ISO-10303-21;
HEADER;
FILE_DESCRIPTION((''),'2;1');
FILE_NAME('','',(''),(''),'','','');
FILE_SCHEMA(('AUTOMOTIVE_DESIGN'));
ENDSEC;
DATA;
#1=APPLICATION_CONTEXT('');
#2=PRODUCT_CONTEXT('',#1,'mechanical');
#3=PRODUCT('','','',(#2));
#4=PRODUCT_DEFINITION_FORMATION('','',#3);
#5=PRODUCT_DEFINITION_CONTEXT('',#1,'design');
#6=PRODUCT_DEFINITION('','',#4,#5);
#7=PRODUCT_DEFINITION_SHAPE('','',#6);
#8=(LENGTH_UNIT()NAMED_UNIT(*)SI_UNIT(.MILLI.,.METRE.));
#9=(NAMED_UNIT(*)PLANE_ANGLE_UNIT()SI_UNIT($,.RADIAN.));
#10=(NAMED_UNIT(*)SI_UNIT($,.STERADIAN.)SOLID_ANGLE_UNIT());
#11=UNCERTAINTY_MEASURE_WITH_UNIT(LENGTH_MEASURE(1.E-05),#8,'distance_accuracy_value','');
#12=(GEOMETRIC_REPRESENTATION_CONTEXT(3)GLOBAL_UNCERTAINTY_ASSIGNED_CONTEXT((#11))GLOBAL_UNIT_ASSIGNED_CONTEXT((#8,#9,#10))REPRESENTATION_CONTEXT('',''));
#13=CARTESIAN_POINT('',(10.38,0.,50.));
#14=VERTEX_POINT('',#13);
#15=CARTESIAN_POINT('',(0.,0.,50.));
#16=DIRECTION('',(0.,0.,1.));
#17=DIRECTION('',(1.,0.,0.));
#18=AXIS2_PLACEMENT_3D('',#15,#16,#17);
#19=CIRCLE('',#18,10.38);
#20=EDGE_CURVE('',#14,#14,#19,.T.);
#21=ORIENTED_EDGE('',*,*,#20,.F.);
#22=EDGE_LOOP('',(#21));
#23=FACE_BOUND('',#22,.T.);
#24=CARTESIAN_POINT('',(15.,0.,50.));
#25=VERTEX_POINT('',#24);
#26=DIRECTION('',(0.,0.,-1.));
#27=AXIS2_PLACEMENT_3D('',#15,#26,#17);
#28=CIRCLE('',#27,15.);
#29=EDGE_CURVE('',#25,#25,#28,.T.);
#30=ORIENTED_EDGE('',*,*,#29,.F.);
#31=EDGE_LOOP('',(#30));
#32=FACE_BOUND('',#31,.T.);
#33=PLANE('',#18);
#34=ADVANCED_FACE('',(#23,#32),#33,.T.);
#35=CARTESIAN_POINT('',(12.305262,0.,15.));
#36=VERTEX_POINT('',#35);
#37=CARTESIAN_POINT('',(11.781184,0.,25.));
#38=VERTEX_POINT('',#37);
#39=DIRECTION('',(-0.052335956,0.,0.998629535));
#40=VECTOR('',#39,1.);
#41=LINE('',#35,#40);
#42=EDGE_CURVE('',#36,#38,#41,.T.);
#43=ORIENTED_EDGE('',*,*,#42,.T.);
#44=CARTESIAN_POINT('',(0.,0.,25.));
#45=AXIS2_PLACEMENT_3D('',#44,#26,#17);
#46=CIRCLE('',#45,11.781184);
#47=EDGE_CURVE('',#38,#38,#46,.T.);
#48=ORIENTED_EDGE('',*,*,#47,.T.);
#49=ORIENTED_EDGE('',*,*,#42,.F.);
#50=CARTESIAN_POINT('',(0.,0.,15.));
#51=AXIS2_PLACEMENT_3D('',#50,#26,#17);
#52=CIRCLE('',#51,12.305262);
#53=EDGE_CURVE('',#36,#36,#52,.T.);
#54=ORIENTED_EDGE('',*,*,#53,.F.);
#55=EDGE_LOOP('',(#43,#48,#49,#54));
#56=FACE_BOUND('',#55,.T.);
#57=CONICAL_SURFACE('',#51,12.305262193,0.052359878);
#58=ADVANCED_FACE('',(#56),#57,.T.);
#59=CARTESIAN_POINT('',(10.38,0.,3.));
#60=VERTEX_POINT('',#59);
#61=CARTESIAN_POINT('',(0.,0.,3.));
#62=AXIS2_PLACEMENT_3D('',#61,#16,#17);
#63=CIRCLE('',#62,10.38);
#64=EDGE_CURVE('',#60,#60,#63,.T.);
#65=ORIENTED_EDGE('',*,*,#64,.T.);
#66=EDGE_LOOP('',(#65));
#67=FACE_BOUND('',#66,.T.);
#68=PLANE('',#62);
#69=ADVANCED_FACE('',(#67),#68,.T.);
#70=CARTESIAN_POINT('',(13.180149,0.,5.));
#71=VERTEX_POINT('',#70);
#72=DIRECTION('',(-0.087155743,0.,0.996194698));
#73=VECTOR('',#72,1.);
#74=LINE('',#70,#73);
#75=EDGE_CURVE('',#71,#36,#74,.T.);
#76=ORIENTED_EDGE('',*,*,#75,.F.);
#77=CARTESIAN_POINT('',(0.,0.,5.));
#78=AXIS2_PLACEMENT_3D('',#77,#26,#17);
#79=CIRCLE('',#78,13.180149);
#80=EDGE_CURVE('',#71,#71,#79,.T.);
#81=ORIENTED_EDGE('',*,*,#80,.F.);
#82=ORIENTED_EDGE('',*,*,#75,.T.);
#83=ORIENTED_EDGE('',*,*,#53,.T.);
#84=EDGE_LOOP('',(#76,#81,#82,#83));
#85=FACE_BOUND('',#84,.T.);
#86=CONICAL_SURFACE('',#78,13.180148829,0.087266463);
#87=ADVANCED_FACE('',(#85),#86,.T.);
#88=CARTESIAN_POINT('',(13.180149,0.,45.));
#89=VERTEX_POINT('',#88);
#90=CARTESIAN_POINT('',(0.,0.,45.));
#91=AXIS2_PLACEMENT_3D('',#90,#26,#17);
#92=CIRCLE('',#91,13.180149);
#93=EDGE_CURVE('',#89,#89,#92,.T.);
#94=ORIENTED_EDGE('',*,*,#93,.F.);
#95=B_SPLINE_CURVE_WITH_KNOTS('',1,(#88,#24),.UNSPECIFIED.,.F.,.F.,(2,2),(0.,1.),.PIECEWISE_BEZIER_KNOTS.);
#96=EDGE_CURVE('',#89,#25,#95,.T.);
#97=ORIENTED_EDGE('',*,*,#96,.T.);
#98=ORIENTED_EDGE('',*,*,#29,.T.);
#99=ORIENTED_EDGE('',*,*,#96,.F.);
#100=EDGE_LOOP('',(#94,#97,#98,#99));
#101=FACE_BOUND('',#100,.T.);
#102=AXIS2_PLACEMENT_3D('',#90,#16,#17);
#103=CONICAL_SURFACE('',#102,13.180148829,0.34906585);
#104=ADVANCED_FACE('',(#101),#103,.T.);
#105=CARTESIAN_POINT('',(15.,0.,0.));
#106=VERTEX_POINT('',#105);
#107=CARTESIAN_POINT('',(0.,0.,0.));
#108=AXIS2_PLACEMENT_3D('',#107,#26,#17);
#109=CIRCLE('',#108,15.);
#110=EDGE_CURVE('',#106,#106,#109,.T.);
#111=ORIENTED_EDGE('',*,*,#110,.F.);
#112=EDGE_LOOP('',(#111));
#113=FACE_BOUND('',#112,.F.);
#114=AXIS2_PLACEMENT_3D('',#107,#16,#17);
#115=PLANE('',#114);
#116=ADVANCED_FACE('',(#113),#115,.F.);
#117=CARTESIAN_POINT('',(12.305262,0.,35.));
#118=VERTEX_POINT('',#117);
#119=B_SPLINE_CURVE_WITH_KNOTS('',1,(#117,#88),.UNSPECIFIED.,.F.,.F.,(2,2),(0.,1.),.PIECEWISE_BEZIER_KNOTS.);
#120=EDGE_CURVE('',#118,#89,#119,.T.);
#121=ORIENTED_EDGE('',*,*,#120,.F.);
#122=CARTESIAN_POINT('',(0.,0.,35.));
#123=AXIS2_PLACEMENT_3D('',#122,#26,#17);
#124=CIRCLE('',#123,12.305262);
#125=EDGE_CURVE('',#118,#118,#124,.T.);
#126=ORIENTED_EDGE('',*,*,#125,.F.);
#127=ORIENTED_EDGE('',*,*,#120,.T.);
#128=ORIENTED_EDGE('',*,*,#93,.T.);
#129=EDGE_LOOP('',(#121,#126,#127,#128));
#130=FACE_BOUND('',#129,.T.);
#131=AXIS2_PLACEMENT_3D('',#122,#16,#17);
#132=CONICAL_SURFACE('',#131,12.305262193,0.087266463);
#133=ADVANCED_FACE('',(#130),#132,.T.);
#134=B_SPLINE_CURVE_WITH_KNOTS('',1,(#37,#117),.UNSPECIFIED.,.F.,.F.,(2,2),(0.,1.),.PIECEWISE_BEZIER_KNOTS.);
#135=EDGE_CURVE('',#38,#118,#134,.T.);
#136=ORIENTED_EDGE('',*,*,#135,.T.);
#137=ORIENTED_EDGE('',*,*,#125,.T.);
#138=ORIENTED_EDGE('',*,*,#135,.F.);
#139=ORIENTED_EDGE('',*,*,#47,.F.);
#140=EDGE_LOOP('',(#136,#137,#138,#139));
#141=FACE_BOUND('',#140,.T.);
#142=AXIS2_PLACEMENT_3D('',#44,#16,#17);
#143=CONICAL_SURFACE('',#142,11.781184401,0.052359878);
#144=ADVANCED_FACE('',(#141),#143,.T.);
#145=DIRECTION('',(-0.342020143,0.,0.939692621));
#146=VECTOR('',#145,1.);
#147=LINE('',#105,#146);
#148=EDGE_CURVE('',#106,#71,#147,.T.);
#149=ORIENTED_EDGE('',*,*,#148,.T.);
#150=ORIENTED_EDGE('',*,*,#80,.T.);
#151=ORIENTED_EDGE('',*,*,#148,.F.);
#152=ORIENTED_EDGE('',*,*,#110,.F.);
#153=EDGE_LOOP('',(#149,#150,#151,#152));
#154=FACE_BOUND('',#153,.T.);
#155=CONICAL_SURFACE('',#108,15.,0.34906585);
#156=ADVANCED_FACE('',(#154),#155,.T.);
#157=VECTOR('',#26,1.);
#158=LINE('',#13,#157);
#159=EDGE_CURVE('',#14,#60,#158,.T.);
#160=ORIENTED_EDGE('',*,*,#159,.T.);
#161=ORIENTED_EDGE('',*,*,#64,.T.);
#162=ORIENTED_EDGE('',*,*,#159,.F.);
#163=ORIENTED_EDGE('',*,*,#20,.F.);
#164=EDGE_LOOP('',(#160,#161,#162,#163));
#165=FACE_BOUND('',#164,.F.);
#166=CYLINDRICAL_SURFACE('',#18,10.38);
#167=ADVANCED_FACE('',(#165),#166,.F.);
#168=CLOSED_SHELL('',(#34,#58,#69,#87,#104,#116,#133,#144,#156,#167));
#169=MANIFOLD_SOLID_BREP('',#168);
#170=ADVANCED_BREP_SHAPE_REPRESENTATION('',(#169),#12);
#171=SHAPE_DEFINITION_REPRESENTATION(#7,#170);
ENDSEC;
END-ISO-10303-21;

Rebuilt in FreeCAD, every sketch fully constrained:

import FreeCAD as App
import Part
import Sketcher

V = App.Vector

doc = App.newDocument("Part")
body = doc.addObject("PartDesign::Body", "Body")

# Sketch on XY plane
sketch1 = body.newObject("Sketcher::SketchObject", "Sketch")
sketch1.AttachmentSupport = (doc.getObject("XY_Plane"), [""])
sketch1.MapMode = "FlatFace"
sketch1.addGeometry(Part.Circle(V(0, 0, 0), V(0, 0, 1), 15), False)
sketch1.addConstraint([
    Sketcher.Constraint("Coincident", 0, 3, -1, 1),
    Sketcher.Constraint("Diameter", 0, 30.0),
])
pad1 = body.newObject("PartDesign::Pad", "Pad")
pad1.Profile = sketch1
pad1.Length = 5
pad1.TaperAngle = -20

# Sketch on XY plane
sketch2 = body.newObject("Sketcher::SketchObject", "Sketch001")
sketch2.AttachmentSupport = (doc.getObject("XY_Plane"), [""])
sketch2.MapMode = "FlatFace"
sketch2.AttachmentOffset = App.Placement(V(0, 0, 5), App.Rotation())
sketch2.addGeometry(Part.Circle(V(0, 0, 0), V(0, 0, 1), 13), False)
sketch2.addConstraint([
    Sketcher.Constraint("Coincident", 0, 3, -1, 1),
    Sketcher.Constraint("Diameter", 0, 26.360298),
])
pad2 = body.newObject("PartDesign::Pad", "Pad001")
pad2.Profile = sketch2
pad2.Length = 10
pad2.TaperAngle = -5

# Sketch on XY plane
sketch3 = body.newObject("Sketcher::SketchObject", "Sketch002")
sketch3.AttachmentSupport = (doc.getObject("XY_Plane"), [""])
sketch3.MapMode = "FlatFace"
sketch3.AttachmentOffset = App.Placement(V(0, 0, 15), App.Rotation())
sketch3.addGeometry(Part.Circle(V(0, 0, 0), V(0, 0, 1), 12), False)
sketch3.addConstraint([
    Sketcher.Constraint("Coincident", 0, 3, -1, 1),
    Sketcher.Constraint("Diameter", 0, 24.610524),
])
pad3 = body.newObject("PartDesign::Pad", "Pad002")
pad3.Profile = sketch3
pad3.Length = 10
pad3.TaperAngle = -3

# Sketch on XY plane
sketch4 = body.newObject("Sketcher::SketchObject", "Sketch003")
sketch4.AttachmentSupport = (doc.getObject("XY_Plane"), [""])
sketch4.MapMode = "FlatFace"
sketch4.AttachmentOffset = App.Placement(V(0, 0, 25), App.Rotation())
sketch4.addGeometry(Part.Circle(V(0, 0, 0), V(0, 0, 1), 12), False)
sketch4.addConstraint([
    Sketcher.Constraint("Coincident", 0, 3, -1, 1),
    Sketcher.Constraint("Diameter", 0, 23.562369),
])
pad4 = body.newObject("PartDesign::Pad", "Pad003")
pad4.Profile = sketch4
pad4.Length = 10
pad4.TaperAngle = 3

# Sketch on XY plane
sketch5 = body.newObject("Sketcher::SketchObject", "Sketch004")
sketch5.AttachmentSupport = (doc.getObject("XY_Plane"), [""])
sketch5.MapMode = "FlatFace"
sketch5.AttachmentOffset = App.Placement(V(0, 0, 35), App.Rotation())
sketch5.addGeometry(Part.Circle(V(0, 0, 0), V(0, 0, 1), 12), False)
sketch5.addConstraint([
    Sketcher.Constraint("Coincident", 0, 3, -1, 1),
    Sketcher.Constraint("Diameter", 0, 24.610524),
])
pad5 = body.newObject("PartDesign::Pad", "Pad004")
pad5.Profile = sketch5
pad5.Length = 10
pad5.TaperAngle = 5

# Sketch on XY plane
sketch6 = body.newObject("Sketcher::SketchObject", "Sketch005")
sketch6.AttachmentSupport = (doc.getObject("XY_Plane"), [""])
sketch6.MapMode = "FlatFace"
sketch6.AttachmentOffset = App.Placement(V(0, 0, 45), App.Rotation())
sketch6.addGeometry(Part.Circle(V(0, 0, 0), V(0, 0, 1), 13), False)
sketch6.addConstraint([
    Sketcher.Constraint("Coincident", 0, 3, -1, 1),
    Sketcher.Constraint("Diameter", 0, 26.360298),
])
pad6 = body.newObject("PartDesign::Pad", "Pad005")
pad6.Profile = sketch6
pad6.Length = 5
pad6.TaperAngle = 20

# Sketch on XY plane
sketch7 = body.newObject("Sketcher::SketchObject", "Sketch006")
sketch7.AttachmentSupport = (doc.getObject("XY_Plane"), [""])
sketch7.MapMode = "FlatFace"
sketch7.AttachmentOffset = App.Placement(V(0, 0, 50), App.Rotation())
sketch7.addGeometry(Part.Circle(V(0, 0, 0), V(0, 0, 1), 10), False)
sketch7.addConstraint([
    Sketcher.Constraint("Coincident", 0, 3, -1, 1),
    Sketcher.Constraint("Diameter", 0, 20.76),
])
pocket1 = body.newObject("PartDesign::Pocket", "Pocket")
pocket1.Profile = sketch7
pocket1.Length = 47

doc.recompute()
